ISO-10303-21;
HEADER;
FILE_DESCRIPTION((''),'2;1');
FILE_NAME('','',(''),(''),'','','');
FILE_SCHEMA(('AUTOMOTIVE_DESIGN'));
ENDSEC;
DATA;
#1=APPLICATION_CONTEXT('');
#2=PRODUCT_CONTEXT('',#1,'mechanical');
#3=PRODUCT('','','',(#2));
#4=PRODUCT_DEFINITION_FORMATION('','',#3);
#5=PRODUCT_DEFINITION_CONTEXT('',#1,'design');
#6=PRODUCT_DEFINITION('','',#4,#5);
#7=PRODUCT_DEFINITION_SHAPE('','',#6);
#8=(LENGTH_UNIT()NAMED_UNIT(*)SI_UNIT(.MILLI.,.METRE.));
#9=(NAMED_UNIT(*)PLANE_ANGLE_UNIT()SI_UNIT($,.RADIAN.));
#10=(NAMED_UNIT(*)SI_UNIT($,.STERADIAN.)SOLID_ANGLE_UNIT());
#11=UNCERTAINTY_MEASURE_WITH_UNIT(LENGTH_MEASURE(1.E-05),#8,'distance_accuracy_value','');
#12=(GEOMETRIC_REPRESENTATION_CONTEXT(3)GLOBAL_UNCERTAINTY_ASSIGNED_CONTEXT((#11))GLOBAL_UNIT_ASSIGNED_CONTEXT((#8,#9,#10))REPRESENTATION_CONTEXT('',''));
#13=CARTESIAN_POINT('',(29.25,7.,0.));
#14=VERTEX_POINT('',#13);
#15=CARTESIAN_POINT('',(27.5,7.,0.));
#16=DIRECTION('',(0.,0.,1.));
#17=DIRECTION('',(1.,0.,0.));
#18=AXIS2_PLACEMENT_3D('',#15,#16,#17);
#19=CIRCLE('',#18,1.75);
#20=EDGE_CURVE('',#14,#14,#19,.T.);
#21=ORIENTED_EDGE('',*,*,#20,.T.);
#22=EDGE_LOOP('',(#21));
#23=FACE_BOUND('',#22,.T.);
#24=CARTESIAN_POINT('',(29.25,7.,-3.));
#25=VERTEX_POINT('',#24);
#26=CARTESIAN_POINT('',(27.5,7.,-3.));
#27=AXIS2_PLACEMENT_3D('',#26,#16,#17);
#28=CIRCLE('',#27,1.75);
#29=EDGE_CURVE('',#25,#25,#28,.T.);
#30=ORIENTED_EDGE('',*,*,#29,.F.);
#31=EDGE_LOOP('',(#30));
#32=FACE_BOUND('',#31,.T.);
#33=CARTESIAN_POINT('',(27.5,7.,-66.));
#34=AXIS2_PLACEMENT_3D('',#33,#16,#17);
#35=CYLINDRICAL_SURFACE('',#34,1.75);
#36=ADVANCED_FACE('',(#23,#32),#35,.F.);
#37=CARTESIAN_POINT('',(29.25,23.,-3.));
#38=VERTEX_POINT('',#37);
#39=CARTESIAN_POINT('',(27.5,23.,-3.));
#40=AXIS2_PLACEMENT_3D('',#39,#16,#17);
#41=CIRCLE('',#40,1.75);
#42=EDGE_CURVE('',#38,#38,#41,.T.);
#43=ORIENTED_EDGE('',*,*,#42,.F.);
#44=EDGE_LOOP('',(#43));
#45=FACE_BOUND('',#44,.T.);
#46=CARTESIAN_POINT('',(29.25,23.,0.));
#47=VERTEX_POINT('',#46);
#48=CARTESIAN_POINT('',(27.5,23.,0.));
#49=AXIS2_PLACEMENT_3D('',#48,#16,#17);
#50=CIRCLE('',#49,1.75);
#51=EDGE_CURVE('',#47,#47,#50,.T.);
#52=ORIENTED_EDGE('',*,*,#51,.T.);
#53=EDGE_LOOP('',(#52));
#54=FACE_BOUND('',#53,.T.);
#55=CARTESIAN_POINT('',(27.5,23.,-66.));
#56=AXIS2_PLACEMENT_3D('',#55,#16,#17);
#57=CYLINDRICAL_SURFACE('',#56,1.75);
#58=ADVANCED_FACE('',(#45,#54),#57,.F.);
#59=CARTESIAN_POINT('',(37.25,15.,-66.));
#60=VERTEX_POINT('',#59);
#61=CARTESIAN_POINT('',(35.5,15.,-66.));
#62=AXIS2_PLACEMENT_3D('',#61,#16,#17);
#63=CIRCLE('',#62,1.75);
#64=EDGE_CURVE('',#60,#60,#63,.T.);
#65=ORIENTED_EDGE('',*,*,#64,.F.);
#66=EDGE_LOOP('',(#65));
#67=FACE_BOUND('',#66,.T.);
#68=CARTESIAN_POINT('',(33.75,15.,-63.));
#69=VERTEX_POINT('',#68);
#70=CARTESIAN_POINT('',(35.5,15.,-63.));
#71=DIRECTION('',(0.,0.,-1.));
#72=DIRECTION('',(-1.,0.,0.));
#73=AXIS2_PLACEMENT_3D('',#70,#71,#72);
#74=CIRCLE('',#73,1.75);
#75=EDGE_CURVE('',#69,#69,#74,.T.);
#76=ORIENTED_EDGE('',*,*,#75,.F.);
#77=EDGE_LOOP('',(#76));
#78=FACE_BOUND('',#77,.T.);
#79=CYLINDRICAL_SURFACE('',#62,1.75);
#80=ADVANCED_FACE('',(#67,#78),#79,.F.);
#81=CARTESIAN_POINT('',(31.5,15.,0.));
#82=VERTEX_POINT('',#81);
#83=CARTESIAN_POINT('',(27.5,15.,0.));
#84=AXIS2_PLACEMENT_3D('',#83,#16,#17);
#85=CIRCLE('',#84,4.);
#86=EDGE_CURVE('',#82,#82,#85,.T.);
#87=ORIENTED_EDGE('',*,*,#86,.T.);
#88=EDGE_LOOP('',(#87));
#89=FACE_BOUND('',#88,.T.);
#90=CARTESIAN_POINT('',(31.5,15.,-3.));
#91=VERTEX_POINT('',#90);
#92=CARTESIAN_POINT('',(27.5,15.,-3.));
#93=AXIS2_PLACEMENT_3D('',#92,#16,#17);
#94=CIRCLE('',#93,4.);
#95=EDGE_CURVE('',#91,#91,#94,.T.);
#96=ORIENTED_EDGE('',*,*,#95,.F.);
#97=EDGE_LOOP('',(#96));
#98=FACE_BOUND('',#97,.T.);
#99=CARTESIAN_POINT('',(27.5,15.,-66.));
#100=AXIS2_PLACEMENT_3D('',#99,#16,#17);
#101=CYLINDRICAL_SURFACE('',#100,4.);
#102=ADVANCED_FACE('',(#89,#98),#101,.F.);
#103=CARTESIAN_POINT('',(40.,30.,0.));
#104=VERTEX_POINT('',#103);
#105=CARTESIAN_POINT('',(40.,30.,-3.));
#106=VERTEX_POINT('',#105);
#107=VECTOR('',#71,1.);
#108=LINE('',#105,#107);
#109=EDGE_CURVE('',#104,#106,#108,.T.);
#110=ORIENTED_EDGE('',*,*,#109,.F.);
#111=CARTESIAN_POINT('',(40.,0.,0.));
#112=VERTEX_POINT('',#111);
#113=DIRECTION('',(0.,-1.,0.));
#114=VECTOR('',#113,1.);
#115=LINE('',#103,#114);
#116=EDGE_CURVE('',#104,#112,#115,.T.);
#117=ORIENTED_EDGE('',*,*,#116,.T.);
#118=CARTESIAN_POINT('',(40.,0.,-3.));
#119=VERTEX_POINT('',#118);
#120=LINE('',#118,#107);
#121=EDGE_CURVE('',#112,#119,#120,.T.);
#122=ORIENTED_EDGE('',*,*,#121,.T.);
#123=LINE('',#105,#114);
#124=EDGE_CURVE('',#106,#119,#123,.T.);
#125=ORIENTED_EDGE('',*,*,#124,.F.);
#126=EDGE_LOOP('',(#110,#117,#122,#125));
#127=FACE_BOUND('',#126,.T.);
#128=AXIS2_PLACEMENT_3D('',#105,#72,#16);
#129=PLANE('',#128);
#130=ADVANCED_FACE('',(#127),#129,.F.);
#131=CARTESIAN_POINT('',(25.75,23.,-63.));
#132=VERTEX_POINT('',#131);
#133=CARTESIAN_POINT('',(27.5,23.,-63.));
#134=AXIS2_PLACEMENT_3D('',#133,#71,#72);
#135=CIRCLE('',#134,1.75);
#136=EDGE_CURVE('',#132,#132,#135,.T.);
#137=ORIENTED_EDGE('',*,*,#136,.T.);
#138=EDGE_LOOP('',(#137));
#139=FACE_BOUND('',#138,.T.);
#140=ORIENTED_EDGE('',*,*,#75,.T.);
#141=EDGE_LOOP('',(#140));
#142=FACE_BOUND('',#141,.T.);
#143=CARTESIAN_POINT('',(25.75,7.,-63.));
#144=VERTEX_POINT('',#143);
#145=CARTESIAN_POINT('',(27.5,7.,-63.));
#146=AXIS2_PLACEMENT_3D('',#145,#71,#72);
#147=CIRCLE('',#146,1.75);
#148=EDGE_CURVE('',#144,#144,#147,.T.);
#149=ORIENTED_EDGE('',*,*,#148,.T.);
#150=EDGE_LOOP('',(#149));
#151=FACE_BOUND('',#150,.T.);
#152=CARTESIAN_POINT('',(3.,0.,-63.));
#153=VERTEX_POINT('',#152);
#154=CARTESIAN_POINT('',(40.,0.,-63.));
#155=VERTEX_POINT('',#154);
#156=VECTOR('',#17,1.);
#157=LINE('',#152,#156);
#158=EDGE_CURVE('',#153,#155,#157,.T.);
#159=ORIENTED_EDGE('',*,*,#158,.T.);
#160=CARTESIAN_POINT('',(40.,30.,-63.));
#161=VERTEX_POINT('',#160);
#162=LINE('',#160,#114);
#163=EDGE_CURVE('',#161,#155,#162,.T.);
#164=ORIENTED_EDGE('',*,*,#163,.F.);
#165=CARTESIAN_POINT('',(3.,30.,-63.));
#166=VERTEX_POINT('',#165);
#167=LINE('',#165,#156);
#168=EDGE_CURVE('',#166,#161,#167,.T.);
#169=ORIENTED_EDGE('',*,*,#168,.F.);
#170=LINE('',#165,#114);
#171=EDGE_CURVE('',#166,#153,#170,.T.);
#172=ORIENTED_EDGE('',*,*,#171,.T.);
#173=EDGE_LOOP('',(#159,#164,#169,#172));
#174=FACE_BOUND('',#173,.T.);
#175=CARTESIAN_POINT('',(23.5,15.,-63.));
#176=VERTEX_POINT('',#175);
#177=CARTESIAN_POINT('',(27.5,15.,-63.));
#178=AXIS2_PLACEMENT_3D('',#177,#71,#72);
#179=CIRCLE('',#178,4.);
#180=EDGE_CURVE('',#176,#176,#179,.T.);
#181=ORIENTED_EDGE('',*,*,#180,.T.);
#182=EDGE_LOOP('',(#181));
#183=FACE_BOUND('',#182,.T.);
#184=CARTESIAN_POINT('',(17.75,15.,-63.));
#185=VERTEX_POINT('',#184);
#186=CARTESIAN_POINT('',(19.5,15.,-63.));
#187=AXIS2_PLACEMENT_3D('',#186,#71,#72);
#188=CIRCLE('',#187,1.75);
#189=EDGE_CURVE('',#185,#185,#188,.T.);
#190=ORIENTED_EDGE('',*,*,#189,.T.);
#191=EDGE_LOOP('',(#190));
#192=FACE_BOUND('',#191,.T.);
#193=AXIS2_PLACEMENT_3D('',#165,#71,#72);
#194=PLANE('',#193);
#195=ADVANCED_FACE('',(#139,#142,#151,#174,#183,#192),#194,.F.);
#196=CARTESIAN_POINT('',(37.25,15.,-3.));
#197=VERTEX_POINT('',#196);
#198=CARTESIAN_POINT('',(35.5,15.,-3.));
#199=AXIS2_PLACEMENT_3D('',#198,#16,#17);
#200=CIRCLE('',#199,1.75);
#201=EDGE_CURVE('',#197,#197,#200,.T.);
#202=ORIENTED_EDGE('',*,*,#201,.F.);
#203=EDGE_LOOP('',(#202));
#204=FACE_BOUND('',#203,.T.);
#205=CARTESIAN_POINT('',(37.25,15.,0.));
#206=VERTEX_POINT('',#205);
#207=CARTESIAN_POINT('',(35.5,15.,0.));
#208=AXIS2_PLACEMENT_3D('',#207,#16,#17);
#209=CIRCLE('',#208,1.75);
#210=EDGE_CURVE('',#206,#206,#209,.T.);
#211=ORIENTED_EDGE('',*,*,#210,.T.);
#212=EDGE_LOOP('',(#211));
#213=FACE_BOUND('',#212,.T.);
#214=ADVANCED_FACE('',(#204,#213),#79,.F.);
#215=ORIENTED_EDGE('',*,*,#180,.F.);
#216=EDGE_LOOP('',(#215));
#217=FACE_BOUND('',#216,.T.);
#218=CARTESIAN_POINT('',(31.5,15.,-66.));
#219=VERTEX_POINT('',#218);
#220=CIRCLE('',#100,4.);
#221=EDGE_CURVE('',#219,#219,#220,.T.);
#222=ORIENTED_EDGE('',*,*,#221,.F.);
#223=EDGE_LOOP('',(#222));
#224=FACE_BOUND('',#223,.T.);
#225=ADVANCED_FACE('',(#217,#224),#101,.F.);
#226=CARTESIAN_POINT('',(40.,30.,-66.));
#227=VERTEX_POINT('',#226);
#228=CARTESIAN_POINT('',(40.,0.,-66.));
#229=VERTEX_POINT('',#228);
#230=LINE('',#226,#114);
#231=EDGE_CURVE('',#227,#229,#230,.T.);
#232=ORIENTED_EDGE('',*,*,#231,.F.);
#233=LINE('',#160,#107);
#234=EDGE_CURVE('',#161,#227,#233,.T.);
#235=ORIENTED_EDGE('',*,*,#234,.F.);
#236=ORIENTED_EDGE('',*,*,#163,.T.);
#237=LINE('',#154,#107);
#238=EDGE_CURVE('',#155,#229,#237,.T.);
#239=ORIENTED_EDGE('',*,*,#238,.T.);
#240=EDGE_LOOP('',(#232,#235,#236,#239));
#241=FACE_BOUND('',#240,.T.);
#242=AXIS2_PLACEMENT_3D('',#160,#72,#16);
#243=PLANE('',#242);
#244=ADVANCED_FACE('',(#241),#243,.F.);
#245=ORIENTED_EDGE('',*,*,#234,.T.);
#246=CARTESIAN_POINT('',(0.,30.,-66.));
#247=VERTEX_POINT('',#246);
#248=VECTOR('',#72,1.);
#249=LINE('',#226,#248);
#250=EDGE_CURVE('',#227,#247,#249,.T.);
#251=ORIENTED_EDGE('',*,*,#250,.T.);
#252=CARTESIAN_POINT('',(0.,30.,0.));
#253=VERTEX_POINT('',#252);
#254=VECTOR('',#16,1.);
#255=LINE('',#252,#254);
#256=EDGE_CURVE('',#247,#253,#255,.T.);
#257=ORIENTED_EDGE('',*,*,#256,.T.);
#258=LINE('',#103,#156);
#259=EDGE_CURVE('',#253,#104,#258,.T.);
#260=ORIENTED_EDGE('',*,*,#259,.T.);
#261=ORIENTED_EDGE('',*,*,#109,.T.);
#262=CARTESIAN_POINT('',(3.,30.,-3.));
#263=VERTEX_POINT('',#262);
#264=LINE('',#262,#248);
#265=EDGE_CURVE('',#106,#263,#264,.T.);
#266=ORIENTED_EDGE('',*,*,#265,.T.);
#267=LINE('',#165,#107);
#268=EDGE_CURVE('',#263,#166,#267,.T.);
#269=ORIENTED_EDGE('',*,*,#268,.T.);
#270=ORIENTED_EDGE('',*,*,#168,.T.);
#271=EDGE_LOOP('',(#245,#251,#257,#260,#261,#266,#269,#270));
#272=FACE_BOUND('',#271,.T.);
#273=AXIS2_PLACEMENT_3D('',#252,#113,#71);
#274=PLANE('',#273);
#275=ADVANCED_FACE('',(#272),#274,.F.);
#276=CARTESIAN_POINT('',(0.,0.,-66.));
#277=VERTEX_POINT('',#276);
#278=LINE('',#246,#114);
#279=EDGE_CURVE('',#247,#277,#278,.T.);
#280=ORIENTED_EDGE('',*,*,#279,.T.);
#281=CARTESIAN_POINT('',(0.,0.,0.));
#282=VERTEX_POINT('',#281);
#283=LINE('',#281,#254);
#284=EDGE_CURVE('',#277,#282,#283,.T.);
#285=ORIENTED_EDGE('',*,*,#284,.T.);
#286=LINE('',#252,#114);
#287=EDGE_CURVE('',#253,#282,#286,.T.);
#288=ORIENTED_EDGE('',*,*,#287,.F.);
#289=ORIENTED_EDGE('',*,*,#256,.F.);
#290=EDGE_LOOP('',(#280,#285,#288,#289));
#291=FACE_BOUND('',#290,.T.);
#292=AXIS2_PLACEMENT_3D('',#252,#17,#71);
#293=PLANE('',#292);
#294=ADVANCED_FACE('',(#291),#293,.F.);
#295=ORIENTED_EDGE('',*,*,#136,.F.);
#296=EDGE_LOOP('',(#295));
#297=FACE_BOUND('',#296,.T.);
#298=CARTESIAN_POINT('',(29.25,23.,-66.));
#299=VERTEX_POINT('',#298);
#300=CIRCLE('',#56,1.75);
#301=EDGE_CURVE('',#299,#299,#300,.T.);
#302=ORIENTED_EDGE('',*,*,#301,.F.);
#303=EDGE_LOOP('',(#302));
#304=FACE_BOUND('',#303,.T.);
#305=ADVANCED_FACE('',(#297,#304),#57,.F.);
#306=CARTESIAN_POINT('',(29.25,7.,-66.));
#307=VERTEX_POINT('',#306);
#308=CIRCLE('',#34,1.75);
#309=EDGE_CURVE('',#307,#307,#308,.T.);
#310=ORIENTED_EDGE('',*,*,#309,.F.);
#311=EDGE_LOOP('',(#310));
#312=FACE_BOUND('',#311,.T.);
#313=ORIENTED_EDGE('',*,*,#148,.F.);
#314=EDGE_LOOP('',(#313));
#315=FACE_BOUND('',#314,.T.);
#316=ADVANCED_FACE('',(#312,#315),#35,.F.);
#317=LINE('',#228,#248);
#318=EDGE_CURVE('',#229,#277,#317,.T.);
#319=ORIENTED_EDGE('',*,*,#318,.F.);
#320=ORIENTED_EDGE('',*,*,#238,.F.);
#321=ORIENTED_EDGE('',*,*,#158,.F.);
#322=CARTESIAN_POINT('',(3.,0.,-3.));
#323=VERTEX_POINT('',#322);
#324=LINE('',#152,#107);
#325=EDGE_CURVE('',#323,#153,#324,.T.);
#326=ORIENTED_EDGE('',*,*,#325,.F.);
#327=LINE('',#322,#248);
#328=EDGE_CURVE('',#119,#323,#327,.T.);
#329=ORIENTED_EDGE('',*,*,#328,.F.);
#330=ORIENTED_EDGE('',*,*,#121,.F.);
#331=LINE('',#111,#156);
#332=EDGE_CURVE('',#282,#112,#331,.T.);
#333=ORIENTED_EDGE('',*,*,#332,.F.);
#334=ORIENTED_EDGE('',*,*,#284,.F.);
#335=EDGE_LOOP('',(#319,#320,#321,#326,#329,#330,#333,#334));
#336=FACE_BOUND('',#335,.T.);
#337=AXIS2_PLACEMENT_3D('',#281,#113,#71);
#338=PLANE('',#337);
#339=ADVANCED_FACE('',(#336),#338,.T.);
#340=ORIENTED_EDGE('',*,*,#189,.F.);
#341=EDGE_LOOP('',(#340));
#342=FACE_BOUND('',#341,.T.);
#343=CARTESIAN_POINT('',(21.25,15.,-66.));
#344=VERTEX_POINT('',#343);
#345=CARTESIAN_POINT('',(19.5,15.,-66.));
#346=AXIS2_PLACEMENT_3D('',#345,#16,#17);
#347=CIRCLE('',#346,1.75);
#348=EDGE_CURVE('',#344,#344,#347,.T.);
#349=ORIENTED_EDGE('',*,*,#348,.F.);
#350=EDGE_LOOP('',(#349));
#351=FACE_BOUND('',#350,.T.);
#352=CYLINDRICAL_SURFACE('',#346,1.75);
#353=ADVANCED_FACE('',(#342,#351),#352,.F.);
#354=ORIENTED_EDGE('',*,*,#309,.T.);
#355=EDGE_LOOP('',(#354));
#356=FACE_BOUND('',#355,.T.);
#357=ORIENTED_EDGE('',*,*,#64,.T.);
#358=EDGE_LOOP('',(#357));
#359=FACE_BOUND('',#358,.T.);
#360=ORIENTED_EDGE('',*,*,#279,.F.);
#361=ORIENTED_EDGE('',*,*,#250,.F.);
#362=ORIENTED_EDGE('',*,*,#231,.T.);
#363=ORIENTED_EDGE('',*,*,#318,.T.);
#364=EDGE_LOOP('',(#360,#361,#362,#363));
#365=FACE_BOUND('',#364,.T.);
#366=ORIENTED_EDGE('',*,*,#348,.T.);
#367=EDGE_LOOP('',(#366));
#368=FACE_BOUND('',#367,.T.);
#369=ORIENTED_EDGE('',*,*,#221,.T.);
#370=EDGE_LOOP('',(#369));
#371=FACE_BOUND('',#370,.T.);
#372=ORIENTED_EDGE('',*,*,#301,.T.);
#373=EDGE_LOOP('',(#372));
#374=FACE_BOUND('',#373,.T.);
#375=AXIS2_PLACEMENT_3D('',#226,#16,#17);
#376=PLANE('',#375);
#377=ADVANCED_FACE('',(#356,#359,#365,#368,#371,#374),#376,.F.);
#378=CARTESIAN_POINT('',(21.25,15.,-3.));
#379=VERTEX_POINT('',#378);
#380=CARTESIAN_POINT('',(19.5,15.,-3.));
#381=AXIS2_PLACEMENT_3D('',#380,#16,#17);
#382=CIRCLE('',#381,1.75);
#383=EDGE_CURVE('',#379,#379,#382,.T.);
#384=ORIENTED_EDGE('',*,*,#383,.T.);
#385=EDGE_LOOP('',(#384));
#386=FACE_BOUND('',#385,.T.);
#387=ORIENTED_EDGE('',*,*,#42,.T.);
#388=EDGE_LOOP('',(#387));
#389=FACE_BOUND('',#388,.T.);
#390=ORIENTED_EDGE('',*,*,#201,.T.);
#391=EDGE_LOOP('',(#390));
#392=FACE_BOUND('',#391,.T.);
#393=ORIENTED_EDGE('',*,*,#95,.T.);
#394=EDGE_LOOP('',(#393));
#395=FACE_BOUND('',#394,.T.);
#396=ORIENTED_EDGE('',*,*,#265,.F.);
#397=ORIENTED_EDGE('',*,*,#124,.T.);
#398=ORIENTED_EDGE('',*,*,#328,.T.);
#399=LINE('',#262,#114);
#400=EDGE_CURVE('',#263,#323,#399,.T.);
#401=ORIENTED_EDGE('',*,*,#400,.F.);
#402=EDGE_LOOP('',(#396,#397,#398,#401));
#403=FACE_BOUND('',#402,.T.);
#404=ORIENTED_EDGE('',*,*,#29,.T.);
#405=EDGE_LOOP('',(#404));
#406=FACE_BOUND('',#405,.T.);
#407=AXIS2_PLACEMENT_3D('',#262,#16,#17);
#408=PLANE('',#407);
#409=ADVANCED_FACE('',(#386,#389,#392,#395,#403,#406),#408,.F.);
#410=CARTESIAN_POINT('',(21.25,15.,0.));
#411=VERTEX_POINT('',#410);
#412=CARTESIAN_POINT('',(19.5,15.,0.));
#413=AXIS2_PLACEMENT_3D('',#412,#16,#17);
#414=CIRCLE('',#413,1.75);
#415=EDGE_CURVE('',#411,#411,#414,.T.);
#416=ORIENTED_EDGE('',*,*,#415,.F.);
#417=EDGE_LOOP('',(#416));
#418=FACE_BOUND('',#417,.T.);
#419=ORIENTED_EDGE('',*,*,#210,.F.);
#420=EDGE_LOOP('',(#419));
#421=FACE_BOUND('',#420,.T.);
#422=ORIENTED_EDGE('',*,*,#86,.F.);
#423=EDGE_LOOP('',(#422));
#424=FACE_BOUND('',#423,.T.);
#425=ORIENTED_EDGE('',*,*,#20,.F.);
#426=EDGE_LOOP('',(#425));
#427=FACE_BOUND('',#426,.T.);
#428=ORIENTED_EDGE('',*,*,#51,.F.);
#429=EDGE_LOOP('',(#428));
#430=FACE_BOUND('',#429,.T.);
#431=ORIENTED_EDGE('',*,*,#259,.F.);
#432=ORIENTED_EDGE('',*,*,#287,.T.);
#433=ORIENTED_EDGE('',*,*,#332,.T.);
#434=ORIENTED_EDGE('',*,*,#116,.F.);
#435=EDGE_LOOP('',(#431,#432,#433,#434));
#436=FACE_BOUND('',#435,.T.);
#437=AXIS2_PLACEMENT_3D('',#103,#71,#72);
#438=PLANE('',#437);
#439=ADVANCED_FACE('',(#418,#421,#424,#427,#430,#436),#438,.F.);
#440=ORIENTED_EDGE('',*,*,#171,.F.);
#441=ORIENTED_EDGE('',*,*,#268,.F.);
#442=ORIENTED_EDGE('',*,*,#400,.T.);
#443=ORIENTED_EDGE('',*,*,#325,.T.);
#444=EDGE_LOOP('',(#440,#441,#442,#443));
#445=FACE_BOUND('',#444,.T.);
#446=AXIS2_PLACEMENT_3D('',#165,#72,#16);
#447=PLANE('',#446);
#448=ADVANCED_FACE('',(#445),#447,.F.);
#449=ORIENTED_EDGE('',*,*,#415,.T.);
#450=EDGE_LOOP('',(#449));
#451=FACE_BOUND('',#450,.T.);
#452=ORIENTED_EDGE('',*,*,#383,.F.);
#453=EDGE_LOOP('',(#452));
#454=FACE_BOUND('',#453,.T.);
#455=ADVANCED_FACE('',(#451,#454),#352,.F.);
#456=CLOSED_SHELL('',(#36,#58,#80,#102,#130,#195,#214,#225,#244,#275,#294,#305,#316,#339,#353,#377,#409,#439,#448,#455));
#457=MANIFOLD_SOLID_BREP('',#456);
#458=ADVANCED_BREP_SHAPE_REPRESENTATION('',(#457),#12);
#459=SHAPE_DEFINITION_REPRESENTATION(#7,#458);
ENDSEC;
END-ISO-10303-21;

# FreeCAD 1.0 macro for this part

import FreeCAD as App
import Part
import Sketcher
from FreeCAD import Vector


def add_polygon(sketch, points):
    """Adds a closed chain of lines whose ends are joined by coincident constraints."""
    first, n = sketch.GeometryCount, len(points)
    for a, b in zip(points, points[1:] + points[:1]):
        sketch.addGeometry(Part.LineSegment(App.Vector(*a, 0), App.Vector(*b, 0)), False)
    for i in range(n):
        sketch.addConstraint(Sketcher.Constraint("Coincident", first + i, 2, first + (i + 1) % n, 1))

doc = App.newDocument("Part")
body = doc.addObject("PartDesign::Body", "Body")

# Sketch on XZ plane
sketch1 = doc.addObject("Sketcher::SketchObject", "Sketch")
body.addObject(sketch1)
sketch1.AttachmentSupport = (doc.XZ_Plane, [""])
sketch1.MapMode = "FlatFace"
add_polygon(sketch1, [(0, -66), (0, 0), (40, 0), (40, -3), (3, -3), (3, -63), (40, -63), (40, -66)])  # lines 0-7
sketch1.addConstraint(Sketcher.Constraint("Vertical", 0))
sketch1.addConstraint(Sketcher.Constraint("Horizontal", 1))
sketch1.addConstraint(Sketcher.Constraint("Vertical", 2))
sketch1.addConstraint(Sketcher.Constraint("Horizontal", 3))
sketch1.addConstraint(Sketcher.Constraint("Vertical", 4))
sketch1.addConstraint(Sketcher.Constraint("Horizontal", 5))
sketch1.addConstraint(Sketcher.Constraint("Vertical", 6))
sketch1.addConstraint(Sketcher.Constraint("Horizontal", 7))
sketch1.addConstraint(Sketcher.Constraint("Coincident", 0, 2, -1, 1))
sketch1.addConstraint(Sketcher.Constraint("Vertical", 2, 2, 5, 2))
sketch1.addConstraint(Sketcher.Constraint("Equal", 2, 6))
sketch1.addConstraint(Sketcher.Constraint("DistanceX", 1, 1, 1, 2, 40.0))
sketch1.addConstraint(Sketcher.Constraint("DistanceX", 3, 2, 3, 1, 37.0))
sketch1.addConstraint(Sketcher.Constraint("DistanceY", 0, 1, 0, 2, 66.0))
sketch1.addConstraint(Sketcher.Constraint("DistanceY", 2, 2, 2, 1, 3.0))
pad1 = doc.addObject("PartDesign::Pad", "Pad")
body.addObject(pad1)
pad1.Profile = sketch1
pad1.Length = 30
pad1.Reversed = True

# Sketch on XY plane
sketch2 = doc.addObject("Sketcher::SketchObject", "Sketch001")
body.addObject(sketch2)
sketch2.AttachmentSupport = (doc.XY_Plane, [""])
sketch2.MapMode = "FlatFace"
sketch2.addGeometry(Part.Circle(Vector(27.5, 15, 0), Vector(0, 0, 1), 4), False)
sketch2.addGeometry(Part.Circle(Vector(19.5, 15, 0), Vector(0, 0, 1), 1.8), False)
sketch2.addGeometry(Part.Circle(Vector(27.5, 23, 0), Vector(0, 0, 1), 1.8), False)
sketch2.addGeometry(Part.Circle(Vector(35.5, 15, 0), Vector(0, 0, 1), 1.8), False)
sketch2.addGeometry(Part.Circle(Vector(27.5, 7, 0), Vector(0, 0, 1), 1.8), False)
sketch2.addConstraint(Sketcher.Constraint("Equal", 1, 2))
sketch2.addConstraint(Sketcher.Constraint("Equal", 2, 3))
sketch2.addConstraint(Sketcher.Constraint("Equal", 3, 4))
sketch2.addConstraint(Sketcher.Constraint("Horizontal", 0, 3, 1, 3))
sketch2.addConstraint(Sketcher.Constraint("Horizontal", 1, 3, 3, 3))
sketch2.addConstraint(Sketcher.Constraint("Vertical", 0, 3, 2, 3))
sketch2.addConstraint(Sketcher.Constraint("Vertical", 2, 3, 4, 3))
sketch2.addConstraint(Sketcher.Constraint("Diameter", 0, 8.0))
sketch2.addConstraint(Sketcher.Constraint("Diameter", 1, 3.5))
sketch2.addConstraint(Sketcher.Constraint("DistanceY", -1, 1, 0, 3, 15.0))
sketch2.addConstraint(Sketcher.Constraint("DistanceY", -1, 1, 2, 3, 23.0))
sketch2.addConstraint(Sketcher.Constraint("DistanceY", -1, 1, 4, 3, 7.0))
sketch2.addConstraint(Sketcher.Constraint("DistanceX", 1, 3, 0, 3, 8.0))
sketch2.addConstraint(Sketcher.Constraint("DistanceX", 0, 3, 3, 3, 8.0))
sketch2.addConstraint(Sketcher.Constraint("DistanceX", -1, 1, 0, 3, 27.5))
pocket1 = doc.addObject("PartDesign::Pocket", "Pocket")
body.addObject(pocket1)
pocket1.Profile = sketch2
pocket1.Type = "ThroughAll"

doc.recompute()
